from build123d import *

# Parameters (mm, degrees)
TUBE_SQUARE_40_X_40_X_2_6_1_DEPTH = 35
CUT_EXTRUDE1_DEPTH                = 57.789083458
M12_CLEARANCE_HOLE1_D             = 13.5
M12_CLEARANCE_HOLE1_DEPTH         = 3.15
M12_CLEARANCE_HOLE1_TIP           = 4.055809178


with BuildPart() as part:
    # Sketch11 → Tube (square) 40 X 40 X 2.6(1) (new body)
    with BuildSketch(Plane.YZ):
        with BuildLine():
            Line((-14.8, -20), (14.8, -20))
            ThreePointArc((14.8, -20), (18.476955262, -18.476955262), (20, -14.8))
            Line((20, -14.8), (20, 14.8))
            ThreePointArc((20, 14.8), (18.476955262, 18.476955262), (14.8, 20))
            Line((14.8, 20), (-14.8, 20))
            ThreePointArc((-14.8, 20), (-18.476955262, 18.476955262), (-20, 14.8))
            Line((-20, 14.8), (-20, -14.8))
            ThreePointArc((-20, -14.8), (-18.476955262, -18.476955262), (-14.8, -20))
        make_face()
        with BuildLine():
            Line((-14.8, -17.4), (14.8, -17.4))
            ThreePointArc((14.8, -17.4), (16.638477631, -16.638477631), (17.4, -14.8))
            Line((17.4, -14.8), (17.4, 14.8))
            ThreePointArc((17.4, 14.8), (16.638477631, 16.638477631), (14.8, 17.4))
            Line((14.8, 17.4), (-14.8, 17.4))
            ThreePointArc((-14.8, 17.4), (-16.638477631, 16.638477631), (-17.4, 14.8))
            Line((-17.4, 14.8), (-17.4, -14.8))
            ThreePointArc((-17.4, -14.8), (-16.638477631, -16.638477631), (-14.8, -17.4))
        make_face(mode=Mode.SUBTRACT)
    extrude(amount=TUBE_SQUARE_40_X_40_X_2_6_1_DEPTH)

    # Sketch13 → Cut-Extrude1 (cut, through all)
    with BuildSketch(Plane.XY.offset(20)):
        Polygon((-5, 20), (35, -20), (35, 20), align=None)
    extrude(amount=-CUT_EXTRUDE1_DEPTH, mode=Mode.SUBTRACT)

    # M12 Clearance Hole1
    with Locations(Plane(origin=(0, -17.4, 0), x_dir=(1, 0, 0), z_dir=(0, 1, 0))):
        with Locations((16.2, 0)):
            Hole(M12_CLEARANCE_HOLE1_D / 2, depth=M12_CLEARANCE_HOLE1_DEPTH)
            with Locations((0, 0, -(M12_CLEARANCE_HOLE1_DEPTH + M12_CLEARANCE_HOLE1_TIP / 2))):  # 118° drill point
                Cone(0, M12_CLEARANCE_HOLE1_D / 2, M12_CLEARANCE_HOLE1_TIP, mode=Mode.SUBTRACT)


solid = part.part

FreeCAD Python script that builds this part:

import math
import FreeCAD as App
import Part
import Sketcher
Q = App.Units.Quantity


def add_polygon(sketch, points):
    """Adds a closed chain of lines whose ends are joined by coincident constraints."""
    first, n = sketch.GeometryCount, len(points)
    for a, b in zip(points, points[1:] + points[:1]):
        sketch.addGeometry(Part.LineSegment(App.Vector(*a, 0), App.Vector(*b, 0)), False)
    for i in range(n):
        sketch.addConstraint(Sketcher.Constraint("Coincident", first + i, 2, first + (i + 1) % n, 1))

doc = App.newDocument("Part")
body = doc.addObject("PartDesign::Body", "Body")

sketch1 = doc.addObject("Sketcher::SketchObject", "Sketch")
body.addObject(sketch1)
sketch1.AttachmentSupport = (doc.YZ_Plane, [""])
sketch1.MapMode = "FlatFace"
sketch1.addGeometry([
    Part.LineSegment(App.Vector(-14.8, -20, 0), App.Vector(14.8, -20, 0)),
    Part.ArcOfCircle(Part.Circle(App.Vector(14.8, -14.8, 0), App.Vector(0, 0, 1), 5.2), math.radians(-90), math.radians(0)),
    Part.LineSegment(App.Vector(20, -14.8, 0), App.Vector(20, 14.8, 0)),
    Part.ArcOfCircle(Part.Circle(App.Vector(14.8, 14.8, 0), App.Vector(0, 0, 1), 5.2), math.radians(0), math.radians(90)),
    Part.LineSegment(App.Vector(14.8, 20, 0), App.Vector(-14.8, 20, 0)),
    Part.ArcOfCircle(Part.Circle(App.Vector(-14.8, 14.8, 0), App.Vector(0, 0, 1), 5.2), math.radians(90), math.radians(180)),
    Part.LineSegment(App.Vector(-20, 14.8, 0), App.Vector(-20, -14.8, 0)),
    Part.ArcOfCircle(Part.Circle(App.Vector(-14.8, -14.8, 0), App.Vector(0, 0, 1), 5.2), math.radians(-180), math.radians(-90)),
    Part.LineSegment(App.Vector(14.8, -17.4, 0), App.Vector(-14.8, -17.4, 0)),
    Part.ArcOfCircle(Part.Circle(App.Vector(-14.8, -14.8, 0), App.Vector(0, 0, 1), 2.6), math.radians(180), math.radians(270)),
    Part.LineSegment(App.Vector(-17.4, -14.8, 0), App.Vector(-17.4, 14.8, 0)),
    Part.ArcOfCircle(Part.Circle(App.Vector(-14.8, 14.8, 0), App.Vector(0, 0, 1), 2.6), math.radians(90), math.radians(180)),
    Part.LineSegment(App.Vector(-14.8, 17.4, 0), App.Vector(14.8, 17.4, 0)),
    Part.ArcOfCircle(Part.Circle(App.Vector(14.8, 14.8, 0), App.Vector(0, 0, 1), 2.6), math.radians(0), math.radians(90)),
    Part.LineSegment(App.Vector(17.4, 14.8, 0), App.Vector(17.4, -14.8, 0)),
    Part.ArcOfCircle(Part.Circle(App.Vector(14.8, -14.8, 0), App.Vector(0, 0, 1), 2.6), math.radians(-90), math.radians(0)),
], False)
sketch1.addConstraint([
    Sketcher.Constraint("Tangent", 0, 2, 1, 1),
    Sketcher.Constraint("Tangent", 1, 2, 2, 1),
    Sketcher.Constraint("Tangent", 2, 2, 3, 1),
    Sketcher.Constraint("Tangent", 3, 2, 4, 1),
    Sketcher.Constraint("Tangent", 4, 2, 5, 1),
    Sketcher.Constraint("Tangent", 5, 2, 6, 1),
    Sketcher.Constraint("Tangent", 6, 2, 7, 1),
    Sketcher.Constraint("Tangent", 7, 2, 0, 1),
    Sketcher.Constraint("Tangent", 8, 2, 9, 2),
    Sketcher.Constraint("Tangent", 9, 1, 10, 1),
    Sketcher.Constraint("Tangent", 10, 2, 11, 2),
    Sketcher.Constraint("Tangent", 11, 1, 12, 1),
    Sketcher.Constraint("Tangent", 12, 2, 13, 2),
    Sketcher.Constraint("Tangent", 13, 1, 14, 1),
    Sketcher.Constraint("Tangent", 14, 2, 15, 2),
    Sketcher.Constraint("Tangent", 15, 1, 8, 1),
    Sketcher.Constraint("Horizontal", 0),
    Sketcher.Constraint("Vertical", 2),
    Sketcher.Constraint("Horizontal", 4),
    Sketcher.Constraint("Vertical", 6),
    Sketcher.Constraint("Horizontal", 8),
    Sketcher.Constraint("Vertical", 10),
    Sketcher.Constraint("Horizontal", 12),
    Sketcher.Constraint("Vertical", 14),
    Sketcher.Constraint("Coincident", 9, 3, 7, 3),
    Sketcher.Constraint("Coincident", 11, 3, 5, 3),
    Sketcher.Constraint("Coincident", 13, 3, 3, 3),
    Sketcher.Constraint("Equal", 1, 3),
    Sketcher.Constraint("Equal", 3, 5),
    Sketcher.Constraint("Equal", 5, 7),
    Sketcher.Constraint("Equal", 13, 15),
    Sketcher.Constraint("Symmetric", 1, 3, 5, 3, -1, 1),
    Sketcher.Constraint("Equal", 12, 2),
    Sketcher.Constraint("Radius", 1, Q("5.2 mm")),
    Sketcher.Constraint("Radius", 9, Q("2.6 mm")),
    Sketcher.Constraint("DistanceX", 0, 1, 0, 2, Q("29.6 mm")),
])
pad1 = doc.addObject("PartDesign::Pad", "Pad")
body.addObject(pad1)
pad1.Profile = sketch1
pad1.Length = 35

sketch2 = doc.addObject("Sketcher::SketchObject", "Sketch001")
body.addObject(sketch2)
sketch2.AttachmentSupport = (doc.XY_Plane, [""])
sketch2.MapMode = "FlatFace"
sketch2.AttachmentOffset = App.Placement(App.Vector(0, 0, 20), App.Rotation())
add_polygon(sketch2, [(-5, 20), (35, -20), (35, 20)])
sketch2.addConstraint([
    Sketcher.Constraint("Vertical", 1),
    Sketcher.Constraint("Horizontal", 2),
    Sketcher.Constraint("Equal", 2, 1),
    Sketcher.Constraint("DistanceX", 2, 2, 2, 1, Q("40 mm")),
    Sketcher.Constraint("DistanceX", -1, 1, 0, 2, Q("35 mm")),
    Sketcher.Constraint("DistanceY", 0, 2, -1, 1, Q("20 mm")),
])
pocket1 = doc.addObject("PartDesign::Pocket", "Pocket")
body.addObject(pocket1)
pocket1.Profile = sketch2
pocket1.Type = "ThroughAll"

sketch3 = doc.addObject("Sketcher::SketchObject", "Sketch002")
body.addObject(sketch3)
sketch3.AttachmentSupport = (doc.XZ_Plane, [""])
sketch3.MapMode = "FlatFace"
sketch3.AttachmentOffset = App.Placement(App.Vector(0, 0, 17.4), App.Rotation())
sketch3.addGeometry(Part.Circle(App.Vector(16, 0, 0), App.Vector(0, 0, 1), 7), False)
sketch3.addConstraint([
    Sketcher.Constraint("PointOnObject", 0, 3, -1),
    Sketcher.Constraint("Diameter", 0, Q("13.5 mm")),
    Sketcher.Constraint("DistanceX", -1, 1, 0, 3, Q("16.2 mm")),
])
doc.recompute()
hole = doc.addObject("PartDesign::Hole", "Hole")
body.addObject(hole)
hole.Profile = sketch3
hole.ThreadType = "None"
hole.Diameter = 13.5
hole.DepthType = "Dimension"
hole.Depth = 3.15
hole.DrillPoint = "Angled"
hole.DrillPointAngle = 118
hole.Reversed = True

doc.recompute()
